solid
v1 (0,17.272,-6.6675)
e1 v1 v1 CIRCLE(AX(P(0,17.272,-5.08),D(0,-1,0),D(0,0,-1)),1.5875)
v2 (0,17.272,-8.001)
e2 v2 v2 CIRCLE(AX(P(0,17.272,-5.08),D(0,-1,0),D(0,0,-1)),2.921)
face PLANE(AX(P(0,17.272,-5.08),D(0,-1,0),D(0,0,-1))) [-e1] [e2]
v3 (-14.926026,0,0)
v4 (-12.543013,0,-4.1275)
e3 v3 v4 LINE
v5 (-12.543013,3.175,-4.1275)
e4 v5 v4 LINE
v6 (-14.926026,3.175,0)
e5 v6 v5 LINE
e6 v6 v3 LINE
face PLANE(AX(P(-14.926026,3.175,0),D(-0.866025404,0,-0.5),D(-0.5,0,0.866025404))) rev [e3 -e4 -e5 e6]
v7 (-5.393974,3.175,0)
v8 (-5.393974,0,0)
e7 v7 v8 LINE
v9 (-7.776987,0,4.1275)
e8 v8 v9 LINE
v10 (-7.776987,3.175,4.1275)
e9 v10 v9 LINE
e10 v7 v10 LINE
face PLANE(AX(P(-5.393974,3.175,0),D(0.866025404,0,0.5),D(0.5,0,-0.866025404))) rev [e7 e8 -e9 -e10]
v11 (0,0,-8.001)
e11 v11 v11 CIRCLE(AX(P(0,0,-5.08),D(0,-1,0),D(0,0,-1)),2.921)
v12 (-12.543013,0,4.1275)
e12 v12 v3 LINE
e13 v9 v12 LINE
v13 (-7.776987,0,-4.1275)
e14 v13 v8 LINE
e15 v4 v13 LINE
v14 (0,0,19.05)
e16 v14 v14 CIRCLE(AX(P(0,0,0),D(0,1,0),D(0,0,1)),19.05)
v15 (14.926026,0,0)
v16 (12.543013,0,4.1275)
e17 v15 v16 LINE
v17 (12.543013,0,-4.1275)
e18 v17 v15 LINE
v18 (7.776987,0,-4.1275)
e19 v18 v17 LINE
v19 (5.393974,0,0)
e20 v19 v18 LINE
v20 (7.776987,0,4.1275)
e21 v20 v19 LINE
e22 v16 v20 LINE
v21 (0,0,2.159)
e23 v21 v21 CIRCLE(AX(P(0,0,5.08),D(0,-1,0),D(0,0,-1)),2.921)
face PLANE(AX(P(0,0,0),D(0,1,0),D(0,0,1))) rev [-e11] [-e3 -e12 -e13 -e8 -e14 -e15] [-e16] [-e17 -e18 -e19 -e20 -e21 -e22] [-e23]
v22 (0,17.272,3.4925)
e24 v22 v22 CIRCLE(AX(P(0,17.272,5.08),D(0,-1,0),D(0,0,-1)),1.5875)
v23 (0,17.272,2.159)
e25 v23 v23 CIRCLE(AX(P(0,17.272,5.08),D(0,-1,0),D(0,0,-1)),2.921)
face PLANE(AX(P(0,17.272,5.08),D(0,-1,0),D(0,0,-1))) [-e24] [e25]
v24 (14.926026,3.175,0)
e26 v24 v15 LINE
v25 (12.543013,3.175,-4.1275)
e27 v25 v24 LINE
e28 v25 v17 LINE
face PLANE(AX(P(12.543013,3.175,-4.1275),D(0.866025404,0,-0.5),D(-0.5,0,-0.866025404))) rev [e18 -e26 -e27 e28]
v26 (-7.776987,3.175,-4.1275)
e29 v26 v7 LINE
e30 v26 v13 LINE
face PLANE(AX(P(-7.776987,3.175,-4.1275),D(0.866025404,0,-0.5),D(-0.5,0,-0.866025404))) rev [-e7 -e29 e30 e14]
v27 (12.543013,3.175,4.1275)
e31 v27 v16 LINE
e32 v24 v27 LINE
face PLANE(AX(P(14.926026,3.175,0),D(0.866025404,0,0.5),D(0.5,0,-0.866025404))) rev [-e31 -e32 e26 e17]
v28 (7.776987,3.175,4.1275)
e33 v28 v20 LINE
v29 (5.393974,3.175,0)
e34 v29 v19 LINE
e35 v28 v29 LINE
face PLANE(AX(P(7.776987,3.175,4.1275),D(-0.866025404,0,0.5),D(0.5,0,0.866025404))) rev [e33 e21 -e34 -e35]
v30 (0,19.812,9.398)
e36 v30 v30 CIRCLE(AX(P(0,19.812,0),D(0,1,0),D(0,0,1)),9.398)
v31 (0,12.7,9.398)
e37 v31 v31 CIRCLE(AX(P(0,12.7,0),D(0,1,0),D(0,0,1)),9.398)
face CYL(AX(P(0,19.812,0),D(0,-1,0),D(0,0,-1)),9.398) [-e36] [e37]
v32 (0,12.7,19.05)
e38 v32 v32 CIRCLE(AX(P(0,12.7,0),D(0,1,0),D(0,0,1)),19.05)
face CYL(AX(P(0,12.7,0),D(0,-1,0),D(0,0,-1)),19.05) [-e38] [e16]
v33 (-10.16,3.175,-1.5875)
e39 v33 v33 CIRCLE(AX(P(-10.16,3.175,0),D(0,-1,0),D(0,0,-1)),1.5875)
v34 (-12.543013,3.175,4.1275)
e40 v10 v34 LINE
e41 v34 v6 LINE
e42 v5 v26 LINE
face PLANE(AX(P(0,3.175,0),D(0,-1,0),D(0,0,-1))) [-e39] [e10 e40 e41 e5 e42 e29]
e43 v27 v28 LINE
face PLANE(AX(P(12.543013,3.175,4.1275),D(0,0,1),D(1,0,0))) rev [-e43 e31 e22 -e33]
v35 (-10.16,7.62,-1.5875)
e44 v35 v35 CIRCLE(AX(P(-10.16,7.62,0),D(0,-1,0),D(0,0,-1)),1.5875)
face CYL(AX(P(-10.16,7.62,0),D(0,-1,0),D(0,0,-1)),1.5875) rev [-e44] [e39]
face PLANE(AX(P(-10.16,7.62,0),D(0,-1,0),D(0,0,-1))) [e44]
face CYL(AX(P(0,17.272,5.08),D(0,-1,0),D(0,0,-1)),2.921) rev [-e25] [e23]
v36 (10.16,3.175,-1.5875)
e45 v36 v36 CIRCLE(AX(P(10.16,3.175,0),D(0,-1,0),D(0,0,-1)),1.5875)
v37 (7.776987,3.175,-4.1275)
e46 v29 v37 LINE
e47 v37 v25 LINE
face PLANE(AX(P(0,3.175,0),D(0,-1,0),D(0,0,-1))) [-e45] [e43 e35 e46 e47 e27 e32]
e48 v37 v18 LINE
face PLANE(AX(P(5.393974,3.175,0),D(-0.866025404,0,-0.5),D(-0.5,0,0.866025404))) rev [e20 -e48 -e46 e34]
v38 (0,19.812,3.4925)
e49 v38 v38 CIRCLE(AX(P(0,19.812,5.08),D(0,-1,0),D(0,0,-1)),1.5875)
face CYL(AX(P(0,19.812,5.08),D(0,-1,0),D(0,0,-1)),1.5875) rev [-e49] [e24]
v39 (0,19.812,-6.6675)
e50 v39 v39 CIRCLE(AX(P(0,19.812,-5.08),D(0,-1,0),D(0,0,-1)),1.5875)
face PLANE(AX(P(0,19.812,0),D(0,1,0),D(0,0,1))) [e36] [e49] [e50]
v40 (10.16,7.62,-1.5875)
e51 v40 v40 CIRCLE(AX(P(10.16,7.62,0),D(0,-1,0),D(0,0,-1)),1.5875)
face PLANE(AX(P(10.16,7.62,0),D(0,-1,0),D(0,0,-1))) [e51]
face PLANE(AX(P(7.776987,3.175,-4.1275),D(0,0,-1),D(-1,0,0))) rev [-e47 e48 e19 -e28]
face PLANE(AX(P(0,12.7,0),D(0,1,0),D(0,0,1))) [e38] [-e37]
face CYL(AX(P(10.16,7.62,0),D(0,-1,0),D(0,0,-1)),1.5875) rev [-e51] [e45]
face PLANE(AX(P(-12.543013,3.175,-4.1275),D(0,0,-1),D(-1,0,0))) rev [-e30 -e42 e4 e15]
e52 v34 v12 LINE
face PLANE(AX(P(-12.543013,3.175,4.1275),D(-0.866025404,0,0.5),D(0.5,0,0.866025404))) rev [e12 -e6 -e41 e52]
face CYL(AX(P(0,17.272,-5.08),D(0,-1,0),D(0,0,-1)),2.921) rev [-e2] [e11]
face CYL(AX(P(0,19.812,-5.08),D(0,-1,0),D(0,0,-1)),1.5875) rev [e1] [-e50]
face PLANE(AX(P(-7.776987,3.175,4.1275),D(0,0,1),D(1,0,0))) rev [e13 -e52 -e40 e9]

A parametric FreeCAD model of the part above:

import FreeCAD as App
import Part
import Sketcher
Q = App.Units.Quantity


def add_polygon(sketch, points):
    """Adds a closed chain of lines whose ends are joined by coincident constraints."""
    first, n = sketch.GeometryCount, len(points)
    for a, b in zip(points, points[1:] + points[:1]):
        sketch.addGeometry(Part.LineSegment(App.Vector(*a, 0), App.Vector(*b, 0)), False)
    for i in range(n):
        sketch.addConstraint(Sketcher.Constraint("Coincident", first + i, 2, first + (i + 1) % n, 1))

doc = App.newDocument("Part")
params = doc.addObject("Spreadsheet::Sheet", "Params")
for row, (alias, value) in enumerate([
    ("sketch1_diameter", "1.5 in"),
    ("pad1_length", "0.5 in"),
    ("sketch2_diameter", "0.74 in"),
    ("pad2_length", "0.28 in"),
    ("pocket1_length", "0.125 in"),
    ("sketch4_diameter", "0.125 in"),
    ("pocket2_length", "0.3 in"),
    ("sketch5_diameter", "0.23 in"),
    ("pocket3_length", "0.68 in"),
    ("sketch6_diameter", "0.125 in"),
], start=1):
    params.set(f"A{row}", alias)
    params.set(f"B{row}", "=" + value)
    params.setAlias(f"B{row}", alias)

body = doc.addObject("PartDesign::Body", "Body")

# Sketch on XZ plane
sketch1 = body.newObject("Sketcher::SketchObject", "Sketch")
sketch1.AttachmentSupport = (doc.getObject("XZ_Plane"), [""])
sketch1.MapMode = "FlatFace"
sketch1.addGeometry(Part.Circle(App.Vector(0, 0, 0), App.Vector(0, 0, 1), 19), False)
sketch1.addConstraint([
    Sketcher.Constraint("Coincident", 0, 3, -1, 1),
    Sketcher.Constraint("Diameter", 0, Q("1.5 in")),
])
sketch1.setExpression("Constraints[1]", "Params.sketch1_diameter")
pad1 = body.newObject("PartDesign::Pad", "Pad")
pad1.Profile = sketch1
pad1.setExpression("Length", "Params.pad1_length")
pad1.Reversed = True

# Sketch on XZ plane
sketch2 = body.newObject("Sketcher::SketchObject", "Sketch001")
sketch2.AttachmentSupport = (doc.getObject("XZ_Plane"), [""])
sketch2.MapMode = "FlatFace"
sketch2.AttachmentOffset = App.Placement(App.Vector(0, 0, -0.5 * 25.4), App.Rotation())
sketch2.addGeometry(Part.Circle(App.Vector(0, 0, 0), App.Vector(0, 0, 1), 9), False)
sketch2.addConstraint([
    Sketcher.Constraint("Coincident", 0, 3, -1, 1),
    Sketcher.Constraint("Diameter", 0, Q("0.74 in")),
])
sketch2.setExpression("Constraints[1]", "Params.sketch2_diameter")
pad2 = body.newObject("PartDesign::Pad", "Pad001")
pad2.Profile = sketch2
pad2.setExpression("Length", "Params.pad2_length")
pad2.Reversed = True

# Sketch on XZ plane
sketch3 = body.newObject("Sketcher::SketchObject", "Sketch002")
sketch3.AttachmentSupport = (doc.getObject("XZ_Plane"), [""])
sketch3.MapMode = "FlatFace"
add_polygon(sketch3, [(-5.4, 0), (-7.8, 4.1), (-12.5, 4.1), (-14.9, 0), (-12.5, -4.1), (-7.8, -4.1)])  # lines 0-5
add_polygon(sketch3, [(14.9, 0), (12.5, 4.1), (7.8, 4.1), (5.4, 0), (7.8, -4.1), (12.5, -4.1)])  # lines 6-11
sketch3.addConstraint([
    Sketcher.Constraint("Horizontal", 1),
    Sketcher.Constraint("Horizontal", 4),
    Sketcher.Constraint("Horizontal", 7),
    Sketcher.Constraint("Horizontal", 10),
    Sketcher.Constraint("Symmetric", 3, 2, 6, 2, -1, 1),
    Sketcher.Constraint("Symmetric", 5, 2, 8, 2, -1, 1),
    Sketcher.Constraint("Symmetric", 0, 2, 9, 2, -1, 1),
    Sketcher.Constraint("Symmetric", 2, 2, 11, 2, -1, 1),
    Sketcher.Constraint("Symmetric", 1, 2, 6, 2, -2),
    Sketcher.Constraint("PointOnObject", 2, 2, -1),
    Sketcher.Constraint("PointOnObject", 5, 2, -1),
    Sketcher.Constraint("Parallel", 0, 3),
    Sketcher.Constraint("Parallel", 2, 5),
    Sketcher.Constraint("Parallel", 5, 8),
    Sketcher.Constraint("Parallel", 8, 11),
    Sketcher.Constraint("Angle", 0, Q("120 deg")),
    Sketcher.Constraint("DistanceX", 0, 2, 6, 2, Q("0.8 in")),
    Sketcher.Constraint("DistanceY", 3, 2, 1, 2, Q("0.325 in")),
    Sketcher.Constraint("DistanceX", 1, 2, 1, 1, Q("4.766026 mm")),
])
pocket1 = body.newObject("PartDesign::Pocket", "Pocket")
pocket1.Profile = sketch3
pocket1.setExpression("Length", "Params.pocket1_length")

# Sketch on XZ plane
sketch4 = body.newObject("Sketcher::SketchObject", "Sketch003")
sketch4.AttachmentSupport = (doc.getObject("XZ_Plane"), [""])
sketch4.MapMode = "FlatFace"
sketch4.addGeometry([
    Part.Circle(App.Vector(-10.2, 0, 0), App.Vector(0, 0, 1), 1.6),
    Part.Circle(App.Vector(10.2, 0, 0), App.Vector(0, 0, 1), 1.6),
], False)
sketch4.addConstraint([
    Sketcher.Constraint("Equal", 0, 1),
    Sketcher.Constraint("Symmetric", 0, 3, 1, 3, -1, 1),
    Sketcher.Constraint("PointOnObject", 0, 3, -1),
    Sketcher.Constraint("Diameter", 0, Q("0.125 in")),
    Sketcher.Constraint("DistanceX", 0, 3, -1, 1, Q("0.4 in")),
])
sketch4.setExpression("Constraints[3]", "Params.sketch4_diameter")
pocket2 = body.newObject("PartDesign::Pocket", "Pocket001")
pocket2.Profile = sketch4
pocket2.setExpression("Length", "Params.pocket2_length")

# Sketch on XZ plane
sketch5 = body.newObject("Sketcher::SketchObject", "Sketch004")
sketch5.AttachmentSupport = (doc.getObject("XZ_Plane"), [""])
sketch5.MapMode = "FlatFace"
sketch5.addGeometry([
    Part.Circle(App.Vector(0, 5.1, 0), App.Vector(0, 0, 1), 2.9),
    Part.Circle(App.Vector(0, -5.1, 0), App.Vector(0, 0, 1), 2.9),
], False)
sketch5.addConstraint([
    Sketcher.Constraint("Equal", 0, 1),
    Sketcher.Constraint("Symmetric", 0, 3, 1, 3, -1, 1),
    Sketcher.Constraint("PointOnObject", 0, 3, -2),
    Sketcher.Constraint("Diameter", 0, Q("0.23 in")),
    Sketcher.Constraint("DistanceY", -1, 1, 0, 3, Q("0.2 in")),
])
sketch5.setExpression("Constraints[3]", "Params.sketch5_diameter")
pocket3 = body.newObject("PartDesign::Pocket", "Pocket002")
pocket3.Profile = sketch5
pocket3.setExpression("Length", "Params.pocket3_length")

# Sketch on XZ plane
sketch6 = body.newObject("Sketcher::SketchObject", "Sketch005")
sketch6.AttachmentSupport = (doc.getObject("XZ_Plane"), [""])
sketch6.MapMode = "FlatFace"
sketch6.AttachmentOffset = App.Placement(App.Vector(0, 0, -0.68 * 25.4), App.Rotation())
sketch6.addGeometry([
    Part.Circle(App.Vector(0, 5.1, 0), App.Vector(0, 0, 1), 1.6),
    Part.Circle(App.Vector(0, -5.1, 0), App.Vector(0, 0, 1), 1.6),
], False)
sketch6.addConstraint([
    Sketcher.Constraint("Equal", 0, 1),
    Sketcher.Constraint("Symmetric", 0, 3, 1, 3, -1, 1),
    Sketcher.Constraint("PointOnObject", 0, 3, -2),
    Sketcher.Constraint("Diameter", 0, Q("0.125 in")),
    Sketcher.Constraint("DistanceY", -1, 1, 0, 3, Q("0.2 in")),
])
sketch6.setExpression("Constraints[3]", "Params.sketch6_diameter")
pocket4 = body.newObject("PartDesign::Pocket", "Pocket003")
pocket4.Profile = sketch6
pocket4.Type = "ThroughAll"

doc.recompute()
